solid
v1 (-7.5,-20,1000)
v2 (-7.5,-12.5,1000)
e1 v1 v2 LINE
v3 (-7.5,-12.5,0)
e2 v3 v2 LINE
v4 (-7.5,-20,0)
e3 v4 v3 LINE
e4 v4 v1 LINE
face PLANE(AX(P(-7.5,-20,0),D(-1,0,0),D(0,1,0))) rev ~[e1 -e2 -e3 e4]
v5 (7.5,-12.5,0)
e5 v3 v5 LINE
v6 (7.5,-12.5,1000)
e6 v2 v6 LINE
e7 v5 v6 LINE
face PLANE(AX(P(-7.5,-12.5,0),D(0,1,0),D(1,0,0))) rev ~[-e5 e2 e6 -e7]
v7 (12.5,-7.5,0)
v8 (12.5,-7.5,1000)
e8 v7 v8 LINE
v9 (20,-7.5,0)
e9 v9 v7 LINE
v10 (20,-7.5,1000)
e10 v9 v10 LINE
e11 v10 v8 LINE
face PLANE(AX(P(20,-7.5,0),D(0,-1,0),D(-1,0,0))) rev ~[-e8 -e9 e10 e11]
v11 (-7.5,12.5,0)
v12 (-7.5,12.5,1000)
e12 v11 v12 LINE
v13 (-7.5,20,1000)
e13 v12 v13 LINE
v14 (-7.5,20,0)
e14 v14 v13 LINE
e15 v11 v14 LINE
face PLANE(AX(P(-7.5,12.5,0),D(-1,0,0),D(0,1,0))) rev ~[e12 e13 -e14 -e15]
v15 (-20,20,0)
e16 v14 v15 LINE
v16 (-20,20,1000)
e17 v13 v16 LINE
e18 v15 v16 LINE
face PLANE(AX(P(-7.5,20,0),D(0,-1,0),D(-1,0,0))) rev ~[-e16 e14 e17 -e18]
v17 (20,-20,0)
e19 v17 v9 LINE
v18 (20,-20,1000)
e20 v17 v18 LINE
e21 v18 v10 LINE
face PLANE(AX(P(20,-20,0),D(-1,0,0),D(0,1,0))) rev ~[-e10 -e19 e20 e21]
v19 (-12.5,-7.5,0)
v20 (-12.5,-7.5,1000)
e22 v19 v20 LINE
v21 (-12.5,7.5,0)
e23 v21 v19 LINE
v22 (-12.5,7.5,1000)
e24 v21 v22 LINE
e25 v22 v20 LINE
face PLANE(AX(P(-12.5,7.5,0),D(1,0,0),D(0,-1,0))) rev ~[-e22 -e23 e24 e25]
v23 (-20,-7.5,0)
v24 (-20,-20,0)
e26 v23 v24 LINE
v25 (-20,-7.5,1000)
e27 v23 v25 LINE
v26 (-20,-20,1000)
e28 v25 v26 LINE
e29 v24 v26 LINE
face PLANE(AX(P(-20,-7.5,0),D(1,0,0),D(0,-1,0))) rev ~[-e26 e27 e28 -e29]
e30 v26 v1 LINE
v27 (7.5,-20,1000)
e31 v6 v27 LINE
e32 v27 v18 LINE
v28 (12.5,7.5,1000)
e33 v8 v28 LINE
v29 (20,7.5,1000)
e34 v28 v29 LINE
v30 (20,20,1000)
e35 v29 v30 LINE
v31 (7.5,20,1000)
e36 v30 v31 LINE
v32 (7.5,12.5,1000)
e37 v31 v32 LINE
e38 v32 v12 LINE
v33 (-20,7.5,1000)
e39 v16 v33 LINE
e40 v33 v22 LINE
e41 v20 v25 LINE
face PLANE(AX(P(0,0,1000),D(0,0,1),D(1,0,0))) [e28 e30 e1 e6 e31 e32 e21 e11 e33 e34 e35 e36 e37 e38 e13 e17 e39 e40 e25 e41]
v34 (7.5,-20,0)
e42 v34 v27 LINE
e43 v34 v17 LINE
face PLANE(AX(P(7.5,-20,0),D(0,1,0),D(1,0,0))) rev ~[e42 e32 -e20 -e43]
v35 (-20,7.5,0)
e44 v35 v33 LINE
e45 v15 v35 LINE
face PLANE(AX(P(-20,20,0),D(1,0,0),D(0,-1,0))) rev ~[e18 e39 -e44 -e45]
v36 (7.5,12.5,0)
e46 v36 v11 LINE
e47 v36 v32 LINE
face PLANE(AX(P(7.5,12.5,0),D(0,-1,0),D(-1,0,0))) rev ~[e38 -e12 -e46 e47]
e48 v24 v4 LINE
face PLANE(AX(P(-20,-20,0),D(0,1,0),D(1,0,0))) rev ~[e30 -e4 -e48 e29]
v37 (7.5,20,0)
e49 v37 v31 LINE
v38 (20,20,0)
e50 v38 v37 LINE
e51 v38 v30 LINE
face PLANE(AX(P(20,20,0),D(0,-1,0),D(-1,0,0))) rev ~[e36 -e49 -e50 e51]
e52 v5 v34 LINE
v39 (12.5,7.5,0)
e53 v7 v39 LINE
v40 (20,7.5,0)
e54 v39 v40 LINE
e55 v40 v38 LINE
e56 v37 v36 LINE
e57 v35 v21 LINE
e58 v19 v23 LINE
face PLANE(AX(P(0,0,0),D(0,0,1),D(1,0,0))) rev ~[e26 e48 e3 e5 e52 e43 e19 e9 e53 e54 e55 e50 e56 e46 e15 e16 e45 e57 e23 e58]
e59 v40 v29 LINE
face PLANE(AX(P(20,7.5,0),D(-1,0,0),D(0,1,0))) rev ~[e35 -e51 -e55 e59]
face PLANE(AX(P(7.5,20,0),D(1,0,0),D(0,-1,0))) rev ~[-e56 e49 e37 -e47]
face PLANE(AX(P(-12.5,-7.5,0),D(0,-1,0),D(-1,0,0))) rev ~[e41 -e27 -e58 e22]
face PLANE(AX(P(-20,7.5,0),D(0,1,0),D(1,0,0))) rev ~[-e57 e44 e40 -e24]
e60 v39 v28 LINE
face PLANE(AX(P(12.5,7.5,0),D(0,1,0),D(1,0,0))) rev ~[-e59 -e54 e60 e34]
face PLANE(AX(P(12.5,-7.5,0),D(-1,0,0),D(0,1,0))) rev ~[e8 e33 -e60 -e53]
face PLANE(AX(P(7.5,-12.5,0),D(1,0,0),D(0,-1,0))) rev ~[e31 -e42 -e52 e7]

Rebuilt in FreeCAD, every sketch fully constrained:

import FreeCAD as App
import Part
import Sketcher

doc = App.newDocument("Part")
body = doc.addObject("PartDesign::Body", "Body")

sketch1 = doc.addObject("Sketcher::SketchObject", "Sketch")
body.addObject(sketch1)
sketch1.AttachmentSupport = (doc.XY_Plane, [""])
sketch1.MapMode = "FlatFace"
sketch1.addGeometry([
    Part.LineSegment(App.Vector(20, 8, 0), App.Vector(20, 20, 0)),
    Part.LineSegment(App.Vector(20, 20, 0), App.Vector(8, 20, 0)),
    Part.LineSegment(App.Vector(8, 20, 0), App.Vector(8, 12, 0)),
    Part.LineSegment(App.Vector(8, 12, 0), App.Vector(-8, 12, 0)),
    Part.LineSegment(App.Vector(-8, 12, 0), App.Vector(-8, 20, 0)),
    Part.LineSegment(App.Vector(-8, 20, 0), App.Vector(-20, 20, 0)),
    Part.LineSegment(App.Vector(-20, 20, 0), App.Vector(-20, 8, 0)),
    Part.LineSegment(App.Vector(-20, 8, 0), App.Vector(-12, 8, 0)),
    Part.LineSegment(App.Vector(-12, 8, 0), App.Vector(-12, -8, 0)),
    Part.LineSegment(App.Vector(-12, -8, 0), App.Vector(-20, -8, 0)),
    Part.LineSegment(App.Vector(-20, -8, 0), App.Vector(-20, -20, 0)),
    Part.LineSegment(App.Vector(-20, -20, 0), App.Vector(-8, -20, 0)),
    Part.LineSegment(App.Vector(-8, -20, 0), App.Vector(-8, -12, 0)),
    Part.LineSegment(App.Vector(-8, -12, 0), App.Vector(8, -12, 0)),
    Part.LineSegment(App.Vector(8, -12, 0), App.Vector(8, -20, 0)),
    Part.LineSegment(App.Vector(8, -20, 0), App.Vector(20, -20, 0)),
    Part.LineSegment(App.Vector(20, -20, 0), App.Vector(20, -8, 0)),
    Part.LineSegment(App.Vector(20, -8, 0), App.Vector(12, -8, 0)),
    Part.LineSegment(App.Vector(12, -8, 0), App.Vector(12, 8, 0)),
    Part.LineSegment(App.Vector(12, 8, 0), App.Vector(20, 8, 0)),
], False)
sketch1.addConstraint([
    Sketcher.Constraint("Coincident", 0, 2, 1, 1),
    Sketcher.Constraint("Coincident", 1, 2, 2, 1),
    Sketcher.Constraint("Coincident", 2, 2, 3, 1),
    Sketcher.Constraint("Coincident", 3, 2, 4, 1),
    Sketcher.Constraint("Coincident", 4, 2, 5, 1),
    Sketcher.Constraint("Coincident", 5, 2, 6, 1),
    Sketcher.Constraint("Coincident", 6, 2, 7, 1),
    Sketcher.Constraint("Coincident", 7, 2, 8, 1),
    Sketcher.Constraint("Coincident", 8, 2, 9, 1),
    Sketcher.Constraint("Coincident", 9, 2, 10, 1),
    Sketcher.Constraint("Coincident", 10, 2, 11, 1),
    Sketcher.Constraint("Coincident", 11, 2, 12, 1),
    Sketcher.Constraint("Coincident", 12, 2, 13, 1),
    Sketcher.Constraint("Coincident", 13, 2, 14, 1),
    Sketcher.Constraint("Coincident", 14, 2, 15, 1),
    Sketcher.Constraint("Coincident", 15, 2, 16, 1),
    Sketcher.Constraint("Coincident", 16, 2, 17, 1),
    Sketcher.Constraint("Coincident", 17, 2, 18, 1),
    Sketcher.Constraint("Coincident", 18, 2, 19, 1),
    Sketcher.Constraint("Coincident", 19, 2, 0, 1),
    Sketcher.Constraint("Vertical", 0),
    Sketcher.Constraint("Horizontal", 1),
    Sketcher.Constraint("Vertical", 2),
    Sketcher.Constraint("Horizontal", 3),
    Sketcher.Constraint("Vertical", 4),
    Sketcher.Constraint("Horizontal", 5),
    Sketcher.Constraint("Vertical", 6),
    Sketcher.Constraint("Horizontal", 7),
    Sketcher.Constraint("Vertical", 8),
    Sketcher.Constraint("Horizontal", 9),
    Sketcher.Constraint("Vertical", 10),
    Sketcher.Constraint("Horizontal", 11),
    Sketcher.Constraint("Vertical", 12),
    Sketcher.Constraint("Horizontal", 13),
    Sketcher.Constraint("Vertical", 14),
    Sketcher.Constraint("Horizontal", 15),
    Sketcher.Constraint("Vertical", 16),
    Sketcher.Constraint("Horizontal", 17),
    Sketcher.Constraint("Vertical", 18),
    Sketcher.Constraint("Horizontal", 19),
    Sketcher.Constraint("Symmetric", 0, 2, 10, 2, -1, 1),
    Sketcher.Constraint("Symmetric", 2, 2, 12, 2, -1, 1),
    Sketcher.Constraint("Symmetric", 4, 2, 14, 2, -1, 1),
    Sketcher.Constraint("Symmetric", 6, 2, 16, 2, -1, 1),
    Sketcher.Constraint("Symmetric", 8, 2, 18, 2, -1, 1),
    Sketcher.Constraint("Symmetric", 1, 2, 4, 2, -2),
    Sketcher.Constraint("Symmetric", 9, 2, 16, 2, -2),
    Sketcher.Constraint("Equal", 15, 0),
    Sketcher.Constraint("Equal", 19, 2),
    Sketcher.Constraint("Equal", 13, 8),
    Sketcher.Constraint("DistanceX", 3, 2, 3, 1, 15.0),
    Sketcher.Constraint("DistanceX", 1, 2, 1, 1, 12.5),
    Sketcher.Constraint("DistanceX", 7, 1, 7, 2, 7.5),
])
pad1 = doc.addObject("PartDesign::Pad", "Pad")
body.addObject(pad1)
pad1.Profile = sketch1
pad1.Length = 1000

doc.recompute()
